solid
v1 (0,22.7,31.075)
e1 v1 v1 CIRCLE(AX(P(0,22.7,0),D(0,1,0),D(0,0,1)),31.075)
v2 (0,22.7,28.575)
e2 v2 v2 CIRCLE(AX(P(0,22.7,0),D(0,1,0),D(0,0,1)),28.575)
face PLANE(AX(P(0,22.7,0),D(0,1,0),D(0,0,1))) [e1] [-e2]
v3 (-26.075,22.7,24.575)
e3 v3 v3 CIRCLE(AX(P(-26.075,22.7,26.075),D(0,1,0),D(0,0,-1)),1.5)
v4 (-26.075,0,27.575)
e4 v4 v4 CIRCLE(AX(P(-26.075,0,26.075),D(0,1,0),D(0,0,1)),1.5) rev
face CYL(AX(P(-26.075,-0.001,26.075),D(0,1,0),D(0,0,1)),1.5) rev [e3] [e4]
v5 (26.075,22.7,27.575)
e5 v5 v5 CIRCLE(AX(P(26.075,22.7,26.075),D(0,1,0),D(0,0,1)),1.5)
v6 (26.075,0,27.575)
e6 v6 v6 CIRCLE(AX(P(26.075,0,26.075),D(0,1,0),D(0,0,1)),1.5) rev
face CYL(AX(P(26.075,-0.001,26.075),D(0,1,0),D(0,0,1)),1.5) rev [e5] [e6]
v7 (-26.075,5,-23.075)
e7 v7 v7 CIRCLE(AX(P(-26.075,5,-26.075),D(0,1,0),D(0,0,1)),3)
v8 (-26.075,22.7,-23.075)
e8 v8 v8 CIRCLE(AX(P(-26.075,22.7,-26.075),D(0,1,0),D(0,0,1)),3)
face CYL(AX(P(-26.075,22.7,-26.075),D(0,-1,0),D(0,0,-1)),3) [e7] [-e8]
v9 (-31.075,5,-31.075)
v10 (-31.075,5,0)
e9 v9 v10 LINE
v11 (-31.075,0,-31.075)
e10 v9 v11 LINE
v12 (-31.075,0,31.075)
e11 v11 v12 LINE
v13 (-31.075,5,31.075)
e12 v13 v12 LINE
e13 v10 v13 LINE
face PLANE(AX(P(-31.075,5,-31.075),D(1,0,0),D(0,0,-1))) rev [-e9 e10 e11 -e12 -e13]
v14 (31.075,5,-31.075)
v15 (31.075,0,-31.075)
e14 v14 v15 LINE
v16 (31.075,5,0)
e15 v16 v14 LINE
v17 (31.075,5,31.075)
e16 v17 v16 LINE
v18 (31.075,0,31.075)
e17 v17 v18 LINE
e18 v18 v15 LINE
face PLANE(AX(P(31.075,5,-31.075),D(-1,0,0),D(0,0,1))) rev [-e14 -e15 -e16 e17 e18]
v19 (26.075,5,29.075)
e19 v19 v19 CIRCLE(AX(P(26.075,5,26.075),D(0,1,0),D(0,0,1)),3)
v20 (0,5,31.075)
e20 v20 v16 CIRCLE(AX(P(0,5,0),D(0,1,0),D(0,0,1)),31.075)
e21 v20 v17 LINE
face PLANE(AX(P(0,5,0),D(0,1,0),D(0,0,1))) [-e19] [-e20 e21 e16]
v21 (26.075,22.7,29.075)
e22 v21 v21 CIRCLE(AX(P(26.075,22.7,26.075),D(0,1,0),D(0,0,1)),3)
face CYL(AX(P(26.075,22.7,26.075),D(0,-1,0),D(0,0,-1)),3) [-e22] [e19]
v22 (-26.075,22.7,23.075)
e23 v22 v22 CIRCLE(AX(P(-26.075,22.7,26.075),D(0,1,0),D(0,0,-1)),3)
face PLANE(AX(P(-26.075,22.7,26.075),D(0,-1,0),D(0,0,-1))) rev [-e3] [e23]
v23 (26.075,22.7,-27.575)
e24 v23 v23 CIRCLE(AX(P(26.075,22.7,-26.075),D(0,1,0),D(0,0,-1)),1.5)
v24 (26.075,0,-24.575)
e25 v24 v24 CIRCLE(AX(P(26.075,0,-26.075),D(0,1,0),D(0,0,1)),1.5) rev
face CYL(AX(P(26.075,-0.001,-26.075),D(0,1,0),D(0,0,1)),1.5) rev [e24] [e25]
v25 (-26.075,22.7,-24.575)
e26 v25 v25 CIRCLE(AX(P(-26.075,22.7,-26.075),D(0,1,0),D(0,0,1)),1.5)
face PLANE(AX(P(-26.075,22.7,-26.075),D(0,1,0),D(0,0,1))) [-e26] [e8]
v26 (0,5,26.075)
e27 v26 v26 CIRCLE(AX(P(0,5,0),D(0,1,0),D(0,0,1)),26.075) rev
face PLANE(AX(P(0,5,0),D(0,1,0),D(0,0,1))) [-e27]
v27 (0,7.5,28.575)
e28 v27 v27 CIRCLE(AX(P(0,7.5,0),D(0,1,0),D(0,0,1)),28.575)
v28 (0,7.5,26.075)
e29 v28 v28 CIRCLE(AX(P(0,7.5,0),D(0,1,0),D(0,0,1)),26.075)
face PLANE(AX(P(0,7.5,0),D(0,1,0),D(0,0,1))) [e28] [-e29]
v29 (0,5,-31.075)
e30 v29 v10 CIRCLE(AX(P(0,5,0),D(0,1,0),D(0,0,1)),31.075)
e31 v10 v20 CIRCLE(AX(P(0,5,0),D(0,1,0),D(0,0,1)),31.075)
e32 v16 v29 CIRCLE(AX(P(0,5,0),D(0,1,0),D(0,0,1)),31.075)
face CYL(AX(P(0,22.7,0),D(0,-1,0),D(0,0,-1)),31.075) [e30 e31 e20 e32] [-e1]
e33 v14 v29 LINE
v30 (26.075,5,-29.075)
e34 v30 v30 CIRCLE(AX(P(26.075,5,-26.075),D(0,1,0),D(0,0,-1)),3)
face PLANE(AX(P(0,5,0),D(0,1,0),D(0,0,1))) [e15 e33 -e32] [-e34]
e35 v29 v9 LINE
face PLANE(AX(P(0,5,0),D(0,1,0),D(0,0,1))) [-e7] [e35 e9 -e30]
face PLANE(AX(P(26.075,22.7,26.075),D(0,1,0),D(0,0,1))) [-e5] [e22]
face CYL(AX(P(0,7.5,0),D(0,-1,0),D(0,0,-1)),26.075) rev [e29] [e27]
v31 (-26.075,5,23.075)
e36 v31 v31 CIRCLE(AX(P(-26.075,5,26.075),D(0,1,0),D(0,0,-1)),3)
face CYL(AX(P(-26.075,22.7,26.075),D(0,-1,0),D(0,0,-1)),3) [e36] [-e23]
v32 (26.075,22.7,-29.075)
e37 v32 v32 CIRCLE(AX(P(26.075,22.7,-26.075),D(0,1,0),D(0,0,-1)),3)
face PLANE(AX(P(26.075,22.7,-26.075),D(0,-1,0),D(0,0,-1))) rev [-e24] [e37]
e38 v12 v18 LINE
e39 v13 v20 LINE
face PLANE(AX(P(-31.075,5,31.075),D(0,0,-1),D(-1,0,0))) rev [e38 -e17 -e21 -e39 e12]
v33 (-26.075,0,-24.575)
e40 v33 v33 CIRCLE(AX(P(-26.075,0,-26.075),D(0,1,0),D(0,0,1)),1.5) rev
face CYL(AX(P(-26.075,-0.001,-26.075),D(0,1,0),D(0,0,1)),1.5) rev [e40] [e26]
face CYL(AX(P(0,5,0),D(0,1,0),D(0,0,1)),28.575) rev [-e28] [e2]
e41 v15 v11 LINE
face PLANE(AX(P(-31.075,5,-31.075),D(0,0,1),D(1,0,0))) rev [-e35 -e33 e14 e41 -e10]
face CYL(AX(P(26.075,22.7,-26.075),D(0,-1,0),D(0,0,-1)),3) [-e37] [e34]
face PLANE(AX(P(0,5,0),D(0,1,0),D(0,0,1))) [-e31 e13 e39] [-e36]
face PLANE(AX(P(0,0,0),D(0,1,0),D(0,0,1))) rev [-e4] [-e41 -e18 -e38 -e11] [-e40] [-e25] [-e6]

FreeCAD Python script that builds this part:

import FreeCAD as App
import Part
import Sketcher

V = App.Vector
Q = App.Units.Quantity

doc = App.newDocument("Part")
body = doc.addObject("PartDesign::Body", "Body")

# Sketch on XZ plane
sketch1 = body.newObject("Sketcher::SketchObject", "Sketch")
sketch1.AttachmentSupport = (doc.getObject("XZ_Plane"), [""])
sketch1.MapMode = "FlatFace"
sketch1.addGeometry([
    Part.LineSegment(V(-31, -31, 0), V(-31, 31, 0)),
    Part.LineSegment(V(-31, 31, 0), V(31, 31, 0)),
    Part.LineSegment(V(31, 31, 0), V(31, -31, 0)),
    Part.LineSegment(V(31, -31, 0), V(-31, -31, 0)),
], False)
sketch1.addConstraint([
    Sketcher.Constraint("Coincident", 0, 2, 1, 1),
    Sketcher.Constraint("Coincident", 1, 2, 2, 1),
    Sketcher.Constraint("Coincident", 2, 2, 3, 1),
    Sketcher.Constraint("Coincident", 3, 2, 0, 1),
    Sketcher.Constraint("Vertical", 0),
    Sketcher.Constraint("Horizontal", 1),
    Sketcher.Constraint("Vertical", 2),
    Sketcher.Constraint("Horizontal", 3),
    Sketcher.Constraint("Symmetric", 0, 2, 2, 2, -1, 1),
    Sketcher.Constraint("Equal", 3, 0),
    Sketcher.Constraint("DistanceX", 1, 1, 1, 2, Q("62.15 mm")),
])
pad1 = body.newObject("PartDesign::Pad", "Pad")
pad1.Profile = sketch1
pad1.Length = 5
pad1.Reversed = True

# Sketch on XZ plane
sketch2 = body.newObject("Sketcher::SketchObject", "Sketch001")
sketch2.AttachmentSupport = (doc.getObject("XZ_Plane"), [""])
sketch2.MapMode = "FlatFace"
sketch2.AttachmentOffset = App.Placement(V(0, 0, -5), App.Rotation())
sketch2.addGeometry(Part.Circle(V(0, 0, 0), V(0, 0, 1), 31), False)
sketch2.addConstraint([
    Sketcher.Constraint("Coincident", 0, 3, -1, 1),
    Sketcher.Constraint("Diameter", 0, Q("62.15 mm")),
])
pad2 = body.newObject("PartDesign::Pad", "Pad001")
pad2.Profile = sketch2
pad2.Length = 17.7
pad2.Reversed = True

# Sketch on XZ plane
sketch3 = body.newObject("Sketcher::SketchObject", "Sketch002")
sketch3.AttachmentSupport = (doc.getObject("XZ_Plane"), [""])
sketch3.MapMode = "FlatFace"
sketch3.AttachmentOffset = App.Placement(V(0, 0, -22.7), App.Rotation())
sketch3.addGeometry(Part.Circle(V(0, 0, 0), V(0, 0, 1), 29), False)
sketch3.addConstraint([
    Sketcher.Constraint("Coincident", 0, 3, -1, 1),
    Sketcher.Constraint("Diameter", 0, Q("57.15 mm")),
])
pocket1 = body.newObject("PartDesign::Pocket", "Pocket")
pocket1.Profile = sketch3
pocket1.Length = 17.7
pocket1.Reversed = True

# Sketch on XZ plane
sketch4 = body.newObject("Sketcher::SketchObject", "Sketch003")
sketch4.AttachmentSupport = (doc.getObject("XZ_Plane"), [""])
sketch4.MapMode = "FlatFace"
sketch4.AttachmentOffset = App.Placement(V(0, 0, -7.5), App.Rotation())
sketch4.addGeometry([
    Part.Circle(V(0, 0, 0), V(0, 0, 1), 29),
    Part.Circle(V(0, 0, 0), V(0, 0, 1), 26),
], False)
sketch4.addConstraint([
    Sketcher.Constraint("Coincident", 0, 3, -1, 1),
    Sketcher.Constraint("Coincident", 1, 3, -1, 1),
    Sketcher.Constraint("Diameter", 0, Q("57.15 mm")),
    Sketcher.Constraint("Diameter", 1, Q("52.15 mm")),
])
pad3 = body.newObject("PartDesign::Pad", "Pad002")
pad3.Profile = sketch4
pad3.Length = 2.5

# Sketch on XZ plane
sketch5 = body.newObject("Sketcher::SketchObject", "Sketch004")
sketch5.AttachmentSupport = (doc.getObject("XZ_Plane"), [""])
sketch5.MapMode = "FlatFace"
sketch5.AttachmentOffset = App.Placement(V(0, 0, -5), App.Rotation())
sketch5.addGeometry(Part.Circle(V(-26.1, -26.1, 0), V(0, 0, 1), 1.5), False)
sketch5.addConstraint([
    Sketcher.Constraint("Diameter", 0, Q("3 mm")),
    Sketcher.Constraint("DistanceX", 0, 3, -1, 1, Q("26.075 mm")),
    Sketcher.Constraint("DistanceY", 0, 3, -1, 1, Q("26.075 mm")),
])
pocket2 = body.newObject("PartDesign::Pocket", "Pocket001")
pocket2.Profile = sketch5
pocket2.Type = "UpToFirst"
pocket2.Reversed = True

# Sketch on XZ plane
sketch6 = body.newObject("Sketcher::SketchObject", "Sketch005")
sketch6.AttachmentSupport = (doc.getObject("XZ_Plane"), [""])
sketch6.MapMode = "FlatFace"
sketch6.AttachmentOffset = App.Placement(V(0, 0, -5), App.Rotation())
sketch6.addGeometry(Part.Circle(V(-26.1, 26.1, 0), V(0, 0, 1), 1.5), False)
sketch6.addConstraint([
    Sketcher.Constraint("Diameter", 0, Q("3 mm")),
    Sketcher.Constraint("DistanceX", 0, 3, -1, 1, Q("26.075 mm")),
    Sketcher.Constraint("DistanceY", -1, 1, 0, 3, Q("26.075 mm")),
])
pocket3 = body.newObject("PartDesign::Pocket", "Pocket002")
pocket3.Profile = sketch6
pocket3.Type = "UpToFirst"
pocket3.Reversed = True

# Sketch on XZ plane
sketch7 = body.newObject("Sketcher::SketchObject", "Sketch006")
sketch7.AttachmentSupport = (doc.getObject("XZ_Plane"), [""])
sketch7.MapMode = "FlatFace"
sketch7.AttachmentOffset = App.Placement(V(0, 0, -5), App.Rotation())
sketch7.addGeometry(Part.Circle(V(26.1, 26.1, 0), V(0, 0, 1), 1.5), False)
sketch7.addConstraint([
    Sketcher.Constraint("Diameter", 0, Q("3 mm")),
    Sketcher.Constraint("DistanceX", -1, 1, 0, 3, Q("26.075 mm")),
    Sketcher.Constraint("DistanceY", -1, 1, 0, 3, Q("26.075 mm")),
])
pocket4 = body.newObject("PartDesign::Pocket", "Pocket003")
pocket4.Profile = sketch7
pocket4.Type = "UpToFirst"
pocket4.Reversed = True

# Sketch on XZ plane
sketch8 = body.newObject("Sketcher::SketchObject", "Sketch007")
sketch8.AttachmentSupport = (doc.getObject("XZ_Plane"), [""])
sketch8.MapMode = "FlatFace"
sketch8.AttachmentOffset = App.Placement(V(0, 0, -5), App.Rotation())
sketch8.addGeometry(Part.Circle(V(26.1, -26.1, 0), V(0, 0, 1), 1.5), False)
sketch8.addConstraint([
    Sketcher.Constraint("Diameter", 0, Q("3 mm")),
    Sketcher.Constraint("DistanceX", -1, 1, 0, 3, Q("26.075 mm")),
    Sketcher.Constraint("DistanceY", 0, 3, -1, 1, Q("26.075 mm")),
])
pocket5 = body.newObject("PartDesign::Pocket", "Pocket004")
pocket5.Profile = sketch8
pocket5.Type = "UpToFirst"
pocket5.Reversed = True

# Sketch on XZ plane
sketch9 = body.newObject("Sketcher::SketchObject", "Sketch008")
sketch9.AttachmentSupport = (doc.getObject("XZ_Plane"), [""])
sketch9.MapMode = "FlatFace"
sketch9.AttachmentOffset = App.Placement(V(0, 0, -22.7), App.Rotation())
sketch9.addGeometry([
    Part.Circle(V(-26.1, -26.1, 0), V(0, 0, 1), 3),  # 0
    Part.Circle(V(-26.1, -26.1, 0), V(0, 0, 1), 1.5),  # 1
    Part.Circle(V(-26.1, 26.1, 0), V(0, 0, 1), 3),  # 2
    Part.Circle(V(-26.1, 26.1, 0), V(0, 0, 1), 1.5),  # 3
    Part.Circle(V(26.1, 26.1, 0), V(0, 0, 1), 3),  # 4
    Part.Circle(V(26.1, 26.1, 0), V(0, 0, 1), 1.5),  # 5
    Part.Circle(V(26.1, -26.1, 0), V(0, 0, 1), 3),  # 6
    Part.Circle(V(26.1, -26.1, 0), V(0, 0, 1), 1.5),  # 7
], False)
sketch9.addConstraint([
    Sketcher.Constraint("Coincident", 1, 3, 0, 3),
    Sketcher.Constraint("Coincident", 3, 3, 2, 3),
    Sketcher.Constraint("Coincident", 5, 3, 4, 3),
    Sketcher.Constraint("Coincident", 7, 3, 6, 3),
    Sketcher.Constraint("Equal", 0, 2),
    Sketcher.Constraint("Equal", 1, 3),
    Sketcher.Constraint("Equal", 2, 4),
    Sketcher.Constraint("Equal", 3, 5),
    Sketcher.Constraint("Equal", 4, 6),
    Sketcher.Constraint("Equal", 5, 7),
    Sketcher.Constraint("Symmetric", 0, 3, 4, 3, -1, 1),
    Sketcher.Constraint("Symmetric", 2, 3, 6, 3, -1, 1),
    Sketcher.Constraint("Symmetric", 2, 3, 4, 3, -2),
    Sketcher.Constraint("Diameter", 0, Q("6 mm")),
    Sketcher.Constraint("Diameter", 1, Q("3 mm")),
    Sketcher.Constraint("DistanceY", 0, 3, 2, 3, Q("52.15 mm")),
    Sketcher.Constraint("DistanceX", 2, 3, 4, 3, Q("52.15 mm")),
])
pad4 = body.newObject("PartDesign::Pad", "Pad003")
pad4.Profile = sketch9
pad4.Length = 17.7

doc.recompute()
